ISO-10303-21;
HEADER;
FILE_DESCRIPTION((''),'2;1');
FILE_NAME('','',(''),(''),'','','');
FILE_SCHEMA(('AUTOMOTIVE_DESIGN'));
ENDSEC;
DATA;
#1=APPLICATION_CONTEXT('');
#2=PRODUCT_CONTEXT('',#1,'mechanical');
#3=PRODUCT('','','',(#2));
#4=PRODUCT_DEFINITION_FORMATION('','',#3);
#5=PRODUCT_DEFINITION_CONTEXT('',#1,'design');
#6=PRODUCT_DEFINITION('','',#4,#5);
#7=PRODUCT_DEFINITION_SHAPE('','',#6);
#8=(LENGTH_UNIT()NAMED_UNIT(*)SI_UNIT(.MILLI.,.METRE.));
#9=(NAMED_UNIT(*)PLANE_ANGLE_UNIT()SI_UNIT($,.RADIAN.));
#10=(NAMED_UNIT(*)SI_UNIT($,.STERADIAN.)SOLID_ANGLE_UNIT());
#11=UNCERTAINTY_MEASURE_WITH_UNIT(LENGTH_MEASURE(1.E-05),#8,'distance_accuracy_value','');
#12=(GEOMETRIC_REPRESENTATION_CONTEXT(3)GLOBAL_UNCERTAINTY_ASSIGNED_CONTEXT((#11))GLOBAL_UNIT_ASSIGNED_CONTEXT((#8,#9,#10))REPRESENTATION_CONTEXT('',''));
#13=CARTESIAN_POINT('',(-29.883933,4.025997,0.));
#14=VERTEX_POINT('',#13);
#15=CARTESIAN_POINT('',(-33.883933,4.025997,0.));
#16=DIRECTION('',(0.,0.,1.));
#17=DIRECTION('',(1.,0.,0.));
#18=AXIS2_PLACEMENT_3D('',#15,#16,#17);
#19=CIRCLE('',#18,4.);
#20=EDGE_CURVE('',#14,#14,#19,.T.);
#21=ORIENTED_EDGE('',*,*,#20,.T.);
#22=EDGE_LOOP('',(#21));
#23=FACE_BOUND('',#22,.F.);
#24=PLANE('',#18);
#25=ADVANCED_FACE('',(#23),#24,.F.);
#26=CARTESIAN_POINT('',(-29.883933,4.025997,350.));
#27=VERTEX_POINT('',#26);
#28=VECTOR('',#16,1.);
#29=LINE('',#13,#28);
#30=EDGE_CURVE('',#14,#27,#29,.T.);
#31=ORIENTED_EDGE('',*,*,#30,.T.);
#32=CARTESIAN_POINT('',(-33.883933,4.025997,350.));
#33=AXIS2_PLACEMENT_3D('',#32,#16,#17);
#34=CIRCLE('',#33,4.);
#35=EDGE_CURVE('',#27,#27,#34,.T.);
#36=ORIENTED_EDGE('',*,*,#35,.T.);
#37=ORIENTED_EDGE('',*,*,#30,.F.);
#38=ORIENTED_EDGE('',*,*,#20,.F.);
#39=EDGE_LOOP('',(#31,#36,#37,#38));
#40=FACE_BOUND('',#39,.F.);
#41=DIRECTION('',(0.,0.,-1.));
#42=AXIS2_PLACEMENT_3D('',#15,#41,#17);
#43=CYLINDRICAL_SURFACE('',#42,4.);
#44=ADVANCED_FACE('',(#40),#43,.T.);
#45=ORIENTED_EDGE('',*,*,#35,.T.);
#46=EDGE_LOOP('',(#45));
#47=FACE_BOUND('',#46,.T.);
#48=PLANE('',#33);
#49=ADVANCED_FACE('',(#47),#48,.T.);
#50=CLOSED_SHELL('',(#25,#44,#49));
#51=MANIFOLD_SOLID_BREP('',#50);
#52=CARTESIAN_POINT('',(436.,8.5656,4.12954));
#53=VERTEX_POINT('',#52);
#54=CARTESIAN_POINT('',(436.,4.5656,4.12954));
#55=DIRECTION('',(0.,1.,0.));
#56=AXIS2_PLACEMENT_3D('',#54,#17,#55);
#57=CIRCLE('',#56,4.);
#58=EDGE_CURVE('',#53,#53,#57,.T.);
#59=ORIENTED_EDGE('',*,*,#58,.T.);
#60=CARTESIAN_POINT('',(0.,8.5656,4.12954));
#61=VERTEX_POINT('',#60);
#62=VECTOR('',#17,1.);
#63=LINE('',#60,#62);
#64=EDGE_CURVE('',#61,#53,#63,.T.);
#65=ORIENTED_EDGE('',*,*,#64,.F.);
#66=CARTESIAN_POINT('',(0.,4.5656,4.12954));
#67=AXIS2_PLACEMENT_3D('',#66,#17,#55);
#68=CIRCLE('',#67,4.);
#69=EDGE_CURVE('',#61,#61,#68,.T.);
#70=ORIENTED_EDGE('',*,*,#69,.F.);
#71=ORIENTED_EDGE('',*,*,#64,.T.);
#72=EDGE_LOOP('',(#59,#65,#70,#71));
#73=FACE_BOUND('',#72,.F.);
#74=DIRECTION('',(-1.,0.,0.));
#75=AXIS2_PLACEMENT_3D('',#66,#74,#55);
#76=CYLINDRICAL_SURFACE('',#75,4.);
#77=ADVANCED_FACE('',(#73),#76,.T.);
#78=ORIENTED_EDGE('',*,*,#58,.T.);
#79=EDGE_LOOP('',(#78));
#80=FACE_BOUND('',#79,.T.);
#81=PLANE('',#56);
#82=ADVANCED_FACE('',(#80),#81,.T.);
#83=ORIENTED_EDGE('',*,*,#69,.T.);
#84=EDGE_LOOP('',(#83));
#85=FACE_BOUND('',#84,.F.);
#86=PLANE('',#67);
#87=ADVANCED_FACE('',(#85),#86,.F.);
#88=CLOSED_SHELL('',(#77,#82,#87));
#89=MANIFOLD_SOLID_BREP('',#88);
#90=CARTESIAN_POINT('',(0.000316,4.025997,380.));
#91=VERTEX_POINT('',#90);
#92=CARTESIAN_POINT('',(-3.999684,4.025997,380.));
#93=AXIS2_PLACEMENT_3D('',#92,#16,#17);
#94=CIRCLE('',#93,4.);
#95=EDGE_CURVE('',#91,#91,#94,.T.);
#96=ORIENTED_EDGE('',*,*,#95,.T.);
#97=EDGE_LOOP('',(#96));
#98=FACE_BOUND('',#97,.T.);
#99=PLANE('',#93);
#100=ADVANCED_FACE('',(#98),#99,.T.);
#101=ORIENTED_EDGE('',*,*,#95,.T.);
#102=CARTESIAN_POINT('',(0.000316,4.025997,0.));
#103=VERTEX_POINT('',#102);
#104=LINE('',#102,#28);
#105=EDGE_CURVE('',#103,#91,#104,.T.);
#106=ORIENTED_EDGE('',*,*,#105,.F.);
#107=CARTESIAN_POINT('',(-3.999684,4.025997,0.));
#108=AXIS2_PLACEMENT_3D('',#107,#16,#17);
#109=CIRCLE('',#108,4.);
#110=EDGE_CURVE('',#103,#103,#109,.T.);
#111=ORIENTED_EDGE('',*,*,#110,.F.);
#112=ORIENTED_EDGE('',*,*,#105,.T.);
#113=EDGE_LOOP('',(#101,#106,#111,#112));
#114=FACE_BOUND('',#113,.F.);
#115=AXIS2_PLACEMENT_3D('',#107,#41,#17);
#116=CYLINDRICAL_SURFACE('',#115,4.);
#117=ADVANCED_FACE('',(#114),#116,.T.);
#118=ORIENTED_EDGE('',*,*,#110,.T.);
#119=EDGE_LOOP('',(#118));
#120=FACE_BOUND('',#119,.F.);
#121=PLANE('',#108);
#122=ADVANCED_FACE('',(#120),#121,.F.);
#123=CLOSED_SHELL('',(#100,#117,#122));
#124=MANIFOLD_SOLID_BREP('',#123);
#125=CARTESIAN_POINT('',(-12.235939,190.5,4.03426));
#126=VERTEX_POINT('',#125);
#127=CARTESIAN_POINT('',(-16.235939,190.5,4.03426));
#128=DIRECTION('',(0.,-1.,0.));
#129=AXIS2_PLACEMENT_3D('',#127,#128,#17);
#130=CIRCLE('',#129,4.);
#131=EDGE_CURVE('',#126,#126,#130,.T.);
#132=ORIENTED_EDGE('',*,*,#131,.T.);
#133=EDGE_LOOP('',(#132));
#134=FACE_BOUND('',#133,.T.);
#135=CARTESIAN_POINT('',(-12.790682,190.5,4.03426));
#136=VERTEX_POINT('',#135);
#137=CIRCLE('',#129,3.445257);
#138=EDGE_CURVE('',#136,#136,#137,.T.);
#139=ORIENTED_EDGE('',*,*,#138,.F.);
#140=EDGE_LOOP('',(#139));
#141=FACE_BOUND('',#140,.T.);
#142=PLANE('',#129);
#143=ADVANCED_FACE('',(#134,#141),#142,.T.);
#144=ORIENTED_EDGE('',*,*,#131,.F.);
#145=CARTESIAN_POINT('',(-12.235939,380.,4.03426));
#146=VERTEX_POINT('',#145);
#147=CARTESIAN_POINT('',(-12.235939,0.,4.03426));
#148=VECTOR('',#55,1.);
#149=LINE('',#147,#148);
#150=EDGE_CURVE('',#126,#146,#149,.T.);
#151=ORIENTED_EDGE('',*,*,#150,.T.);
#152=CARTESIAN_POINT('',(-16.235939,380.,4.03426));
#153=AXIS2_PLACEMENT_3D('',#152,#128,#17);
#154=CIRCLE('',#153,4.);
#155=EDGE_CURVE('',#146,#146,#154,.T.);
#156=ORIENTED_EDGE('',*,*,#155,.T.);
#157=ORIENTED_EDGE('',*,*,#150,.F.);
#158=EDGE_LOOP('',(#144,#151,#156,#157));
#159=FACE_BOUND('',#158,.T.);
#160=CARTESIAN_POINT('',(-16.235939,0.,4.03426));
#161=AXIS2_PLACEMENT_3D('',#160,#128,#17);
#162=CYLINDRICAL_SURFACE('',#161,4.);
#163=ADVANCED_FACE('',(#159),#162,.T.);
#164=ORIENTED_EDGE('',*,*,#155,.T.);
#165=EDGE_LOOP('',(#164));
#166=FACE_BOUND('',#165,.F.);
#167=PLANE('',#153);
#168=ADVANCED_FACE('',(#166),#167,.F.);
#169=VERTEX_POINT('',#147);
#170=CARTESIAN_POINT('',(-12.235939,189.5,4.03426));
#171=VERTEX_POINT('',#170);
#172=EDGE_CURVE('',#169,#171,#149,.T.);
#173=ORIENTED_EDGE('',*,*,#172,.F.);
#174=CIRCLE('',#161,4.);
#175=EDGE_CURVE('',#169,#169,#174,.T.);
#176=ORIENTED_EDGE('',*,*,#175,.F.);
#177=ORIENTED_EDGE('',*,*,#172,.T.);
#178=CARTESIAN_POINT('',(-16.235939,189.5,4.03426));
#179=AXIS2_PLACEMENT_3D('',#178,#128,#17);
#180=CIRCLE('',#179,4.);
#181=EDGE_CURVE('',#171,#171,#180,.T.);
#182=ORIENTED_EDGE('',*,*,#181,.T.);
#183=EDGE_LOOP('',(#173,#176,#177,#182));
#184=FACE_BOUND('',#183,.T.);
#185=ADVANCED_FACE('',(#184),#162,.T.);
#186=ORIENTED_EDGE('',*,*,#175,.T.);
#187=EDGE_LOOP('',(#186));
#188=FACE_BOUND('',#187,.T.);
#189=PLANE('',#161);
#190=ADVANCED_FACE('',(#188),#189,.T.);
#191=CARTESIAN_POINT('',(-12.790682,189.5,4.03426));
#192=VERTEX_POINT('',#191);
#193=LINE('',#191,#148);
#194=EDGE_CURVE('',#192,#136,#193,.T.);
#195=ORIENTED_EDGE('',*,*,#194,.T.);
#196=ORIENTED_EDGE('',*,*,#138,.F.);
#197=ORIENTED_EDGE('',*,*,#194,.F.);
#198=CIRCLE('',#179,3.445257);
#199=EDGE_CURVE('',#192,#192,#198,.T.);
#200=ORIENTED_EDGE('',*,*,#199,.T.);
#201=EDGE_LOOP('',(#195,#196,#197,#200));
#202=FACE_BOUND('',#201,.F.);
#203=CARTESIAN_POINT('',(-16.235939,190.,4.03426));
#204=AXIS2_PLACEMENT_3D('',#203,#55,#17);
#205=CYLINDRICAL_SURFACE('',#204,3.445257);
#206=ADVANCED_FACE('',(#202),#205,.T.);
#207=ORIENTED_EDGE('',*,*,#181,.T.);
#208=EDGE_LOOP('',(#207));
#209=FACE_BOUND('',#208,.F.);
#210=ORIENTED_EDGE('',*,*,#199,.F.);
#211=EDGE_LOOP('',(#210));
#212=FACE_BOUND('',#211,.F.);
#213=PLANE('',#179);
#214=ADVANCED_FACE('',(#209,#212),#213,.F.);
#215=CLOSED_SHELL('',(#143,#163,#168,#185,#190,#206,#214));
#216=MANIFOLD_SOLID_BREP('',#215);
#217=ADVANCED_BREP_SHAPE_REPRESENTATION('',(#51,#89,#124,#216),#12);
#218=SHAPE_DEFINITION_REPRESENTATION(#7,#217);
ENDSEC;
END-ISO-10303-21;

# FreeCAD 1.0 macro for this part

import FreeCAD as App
import Part
import Sketcher

V = App.Vector
Q = App.Units.Quantity

doc = App.newDocument("Part")
body = doc.addObject("PartDesign::Body", "Body")

sketch1 = body.newObject("Sketcher::SketchObject", "Sketch")
sketch1.AttachmentSupport = (doc.getObject("XY_Plane"), [""])
sketch1.MapMode = "FlatFace"
sketch1.addGeometry(Part.Circle(V(-3.999684, 4.025997, 0), V(0, 0, 1), 4), False)
sketch1.addConstraint(Sketcher.Constraint("Diameter", 0, Q("8 mm")))
sketch1.addConstraint(Sketcher.Constraint("DistanceX", 0, 3, -1, 1, Q("3.999684 mm")))
sketch1.addConstraint(Sketcher.Constraint("DistanceY", -1, 1, 0, 3, Q("4.025997 mm")))
pad1 = body.newObject("PartDesign::Pad", "Pad")
pad1.Profile = sketch1
pad1.Length = 380
body2 = doc.addObject("PartDesign::Body", "Body001")

sketch2 = body2.newObject("Sketcher::SketchObject", "Sketch001")
sketch2.AttachmentSupport = (doc.getObject("XZ_Plane001"), [""])
sketch2.MapMode = "FlatFace"
sketch2.addGeometry(Part.Circle(V(-16.235939, 4.03426, 0), V(0, 0, 1), 4), False)
sketch2.addConstraint(Sketcher.Constraint("Diameter", 0, Q("8 mm")))
sketch2.addConstraint(Sketcher.Constraint("DistanceX", 0, 3, -1, 1, Q("16.235939 mm")))
sketch2.addConstraint(Sketcher.Constraint("DistanceY", -1, 1, 0, 3, Q("4.03426 mm")))
pad2 = body2.newObject("PartDesign::Pad", "Pad001")
pad2.Profile = sketch2
pad2.Length = 380
pad2.Reversed = True

sketch3 = body2.newObject("Sketcher::SketchObject", "Sketch002")
sketch3.AttachmentSupport = (doc.getObject("XZ_Plane001"), [""])
sketch3.MapMode = "FlatFace"
sketch3.AttachmentOffset = App.Placement(V(0, 0, -190), App.Rotation())
sketch3.addGeometry(Part.Circle(V(-16.235939, 4.03426, 0), V(0, 0, 1), 4), False)
sketch3.addGeometry(Part.Circle(V(-16.235939, 4.03426, 0), V(0, 0, 1), 3.445257), False)
sketch3.addConstraint(Sketcher.Constraint("Coincident", 1, 3, 0, 3))
sketch3.addConstraint(Sketcher.Constraint("Diameter", 0, Q("8 mm")))
sketch3.addConstraint(Sketcher.Constraint("Diameter", 1, Q("6.890514 mm")))
sketch3.addConstraint(Sketcher.Constraint("DistanceX", 0, 3, -1, 1, Q("16.235939 mm")))
sketch3.addConstraint(Sketcher.Constraint("DistanceY", -1, 1, 0, 3, Q("4.03426 mm")))
pocket1 = body2.newObject("PartDesign::Pocket", "Pocket")
pocket1.Profile = sketch3
pocket1.Length = 1
pocket1.Midplane = True
body3 = doc.addObject("PartDesign::Body", "Body002")

sketch4 = body3.newObject("Sketcher::SketchObject", "Sketch003")
sketch4.AttachmentSupport = (doc.getObject("YZ_Plane002"), [""])
sketch4.MapMode = "FlatFace"
sketch4.addGeometry(Part.Circle(V(4.5656, 4.12954, 0), V(0, 0, 1), 4), False)
sketch4.addConstraint(Sketcher.Constraint("Diameter", 0, Q("8 mm")))
sketch4.addConstraint(Sketcher.Constraint("DistanceX", -1, 1, 0, 3, Q("4.5656 mm")))
sketch4.addConstraint(Sketcher.Constraint("DistanceY", -1, 1, 0, 3, Q("4.12954 mm")))
pad3 = body3.newObject("PartDesign::Pad", "Pad002")
pad3.Profile = sketch4
pad3.Length = 436
body4 = doc.addObject("PartDesign::Body", "Body003")

sketch5 = body4.newObject("Sketcher::SketchObject", "Sketch004")
sketch5.AttachmentSupport = (doc.getObject("XY_Plane003"), [""])
sketch5.MapMode = "FlatFace"
sketch5.addGeometry(Part.Circle(V(-33.883933, 4.025997, 0), V(0, 0, 1), 4), False)
sketch5.addConstraint(Sketcher.Constraint("Diameter", 0, Q("8 mm")))
sketch5.addConstraint(Sketcher.Constraint("DistanceX", 0, 3, -1, 1, Q("33.883933 mm")))
sketch5.addConstraint(Sketcher.Constraint("DistanceY", -1, 1, 0, 3, Q("4.025997 mm")))
pad4 = body4.newObject("PartDesign::Pad", "Pad003")
pad4.Profile = sketch5
pad4.Length = 350

doc.recompute()
